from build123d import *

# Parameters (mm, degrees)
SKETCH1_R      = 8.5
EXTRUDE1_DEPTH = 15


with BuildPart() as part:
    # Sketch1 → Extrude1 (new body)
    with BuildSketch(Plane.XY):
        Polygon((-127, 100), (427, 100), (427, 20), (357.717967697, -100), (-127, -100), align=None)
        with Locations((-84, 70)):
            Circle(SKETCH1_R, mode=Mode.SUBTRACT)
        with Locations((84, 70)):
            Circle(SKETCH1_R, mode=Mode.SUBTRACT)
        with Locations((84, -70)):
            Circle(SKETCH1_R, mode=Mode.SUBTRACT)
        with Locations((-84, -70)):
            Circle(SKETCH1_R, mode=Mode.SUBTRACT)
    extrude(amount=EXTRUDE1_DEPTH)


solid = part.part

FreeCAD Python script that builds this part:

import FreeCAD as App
import Part
import Sketcher

V = App.Vector
Q = App.Units.Quantity

doc = App.newDocument("Part")
params = doc.addObject("Spreadsheet::Sheet", "Params")
for row, (alias, value) in enumerate([
    ("sketch1_diameter", "17 mm"),
    ("sketch1_width", "554 mm"),
    ("sketch1_height", "200 mm"),
    ("sketch1_height2", "80 mm"),
    ("pad1_length", "15 mm"),
], start=1):
    params.set(f"A{row}", alias)
    params.set(f"B{row}", "=" + value)
    params.setAlias(f"B{row}", alias)

body = doc.addObject("PartDesign::Body", "Body")

sketch1 = body.newObject("Sketcher::SketchObject", "Sketch")
sketch1.AttachmentSupport = (doc.getObject("XY_Plane"), [""])
sketch1.MapMode = "FlatFace"
sketch1.addGeometry(Part.LineSegment(V(427, 100, 0), V(-127, 100, 0)), False)
sketch1.addGeometry(Part.LineSegment(V(-127, 100, 0), V(-127, -100, 0)), False)
sketch1.addGeometry(Part.LineSegment(V(-127, -100, 0), V(358, -100, 0)), False)
sketch1.addGeometry(Part.LineSegment(V(358, -100, 0), V(427, 20, 0)), False)
sketch1.addGeometry(Part.LineSegment(V(427, 20, 0), V(427, 100, 0)), False)
sketch1.addGeometry(Part.Circle(V(84, -70, 0), V(0, 0, 1), 8), False)
sketch1.addGeometry(Part.Circle(V(-84, -70, 0), V(0, 0, 1), 8), False)
sketch1.addGeometry(Part.Circle(V(84, 70, 0), V(0, 0, 1), 8), False)
sketch1.addGeometry(Part.Circle(V(-84, 70, 0), V(0, 0, 1), 8), False)
sketch1.addConstraint(Sketcher.Constraint("Coincident", 0, 2, 1, 1))
sketch1.addConstraint(Sketcher.Constraint("Coincident", 1, 2, 2, 1))
sketch1.addConstraint(Sketcher.Constraint("Coincident", 2, 2, 3, 1))
sketch1.addConstraint(Sketcher.Constraint("Coincident", 3, 2, 4, 1))
sketch1.addConstraint(Sketcher.Constraint("Coincident", 4, 2, 0, 1))
sketch1.addConstraint(Sketcher.Constraint("Horizontal", 0))
sketch1.addConstraint(Sketcher.Constraint("Vertical", 1))
sketch1.addConstraint(Sketcher.Constraint("Horizontal", 2))
sketch1.addConstraint(Sketcher.Constraint("Vertical", 4))
sketch1.addConstraint(Sketcher.Constraint("Equal", 5, 6))
sketch1.addConstraint(Sketcher.Constraint("Equal", 6, 7))
sketch1.addConstraint(Sketcher.Constraint("Equal", 7, 8))
sketch1.addConstraint(Sketcher.Constraint("Symmetric", 6, 3, 7, 3, -1, 1))
sketch1.addConstraint(Sketcher.Constraint("Symmetric", 5, 3, 8, 3, -1, 1))
sketch1.addConstraint(Sketcher.Constraint("Symmetric", 5, 3, 6, 3, -2))
sketch1.addConstraint(Sketcher.Constraint("Diameter", 5, 17.0))
sketch1.addConstraint(Sketcher.Constraint("DistanceX", 0, 2, 0, 1, 554.0))
sketch1.addConstraint(Sketcher.Constraint("DistanceY", 1, 2, 1, 1, 200.0))
sketch1.addConstraint(Sketcher.Constraint("DistanceY", 4, 1, 4, 2, 80.0))
sketch1.addConstraint(Sketcher.Constraint("Angle", 3, Q("60 deg")))
sketch1.addConstraint(Sketcher.Constraint("DistanceX", -1, 1, 5, 3, 84.0))
sketch1.addConstraint(Sketcher.Constraint("DistanceY", 5, 3, -1, 1, 70.0))
sketch1.addConstraint(Sketcher.Constraint("DistanceX", 0, 2, -1, 1, 127.0))
sketch1.addConstraint(Sketcher.Constraint("DistanceY", -1, 1, 0, 2, 100.0))
sketch1.setExpression("Constraints[15]", "Params.sketch1_diameter")
sketch1.setExpression("Constraints[16]", "Params.sketch1_width")
sketch1.setExpression("Constraints[17]", "Params.sketch1_height")
sketch1.setExpression("Constraints[18]", "Params.sketch1_height2")
pad1 = body.newObject("PartDesign::Pad", "Pad")
pad1.Profile = sketch1
pad1.setExpression("Length", "Params.pad1_length")

doc.recompute()
